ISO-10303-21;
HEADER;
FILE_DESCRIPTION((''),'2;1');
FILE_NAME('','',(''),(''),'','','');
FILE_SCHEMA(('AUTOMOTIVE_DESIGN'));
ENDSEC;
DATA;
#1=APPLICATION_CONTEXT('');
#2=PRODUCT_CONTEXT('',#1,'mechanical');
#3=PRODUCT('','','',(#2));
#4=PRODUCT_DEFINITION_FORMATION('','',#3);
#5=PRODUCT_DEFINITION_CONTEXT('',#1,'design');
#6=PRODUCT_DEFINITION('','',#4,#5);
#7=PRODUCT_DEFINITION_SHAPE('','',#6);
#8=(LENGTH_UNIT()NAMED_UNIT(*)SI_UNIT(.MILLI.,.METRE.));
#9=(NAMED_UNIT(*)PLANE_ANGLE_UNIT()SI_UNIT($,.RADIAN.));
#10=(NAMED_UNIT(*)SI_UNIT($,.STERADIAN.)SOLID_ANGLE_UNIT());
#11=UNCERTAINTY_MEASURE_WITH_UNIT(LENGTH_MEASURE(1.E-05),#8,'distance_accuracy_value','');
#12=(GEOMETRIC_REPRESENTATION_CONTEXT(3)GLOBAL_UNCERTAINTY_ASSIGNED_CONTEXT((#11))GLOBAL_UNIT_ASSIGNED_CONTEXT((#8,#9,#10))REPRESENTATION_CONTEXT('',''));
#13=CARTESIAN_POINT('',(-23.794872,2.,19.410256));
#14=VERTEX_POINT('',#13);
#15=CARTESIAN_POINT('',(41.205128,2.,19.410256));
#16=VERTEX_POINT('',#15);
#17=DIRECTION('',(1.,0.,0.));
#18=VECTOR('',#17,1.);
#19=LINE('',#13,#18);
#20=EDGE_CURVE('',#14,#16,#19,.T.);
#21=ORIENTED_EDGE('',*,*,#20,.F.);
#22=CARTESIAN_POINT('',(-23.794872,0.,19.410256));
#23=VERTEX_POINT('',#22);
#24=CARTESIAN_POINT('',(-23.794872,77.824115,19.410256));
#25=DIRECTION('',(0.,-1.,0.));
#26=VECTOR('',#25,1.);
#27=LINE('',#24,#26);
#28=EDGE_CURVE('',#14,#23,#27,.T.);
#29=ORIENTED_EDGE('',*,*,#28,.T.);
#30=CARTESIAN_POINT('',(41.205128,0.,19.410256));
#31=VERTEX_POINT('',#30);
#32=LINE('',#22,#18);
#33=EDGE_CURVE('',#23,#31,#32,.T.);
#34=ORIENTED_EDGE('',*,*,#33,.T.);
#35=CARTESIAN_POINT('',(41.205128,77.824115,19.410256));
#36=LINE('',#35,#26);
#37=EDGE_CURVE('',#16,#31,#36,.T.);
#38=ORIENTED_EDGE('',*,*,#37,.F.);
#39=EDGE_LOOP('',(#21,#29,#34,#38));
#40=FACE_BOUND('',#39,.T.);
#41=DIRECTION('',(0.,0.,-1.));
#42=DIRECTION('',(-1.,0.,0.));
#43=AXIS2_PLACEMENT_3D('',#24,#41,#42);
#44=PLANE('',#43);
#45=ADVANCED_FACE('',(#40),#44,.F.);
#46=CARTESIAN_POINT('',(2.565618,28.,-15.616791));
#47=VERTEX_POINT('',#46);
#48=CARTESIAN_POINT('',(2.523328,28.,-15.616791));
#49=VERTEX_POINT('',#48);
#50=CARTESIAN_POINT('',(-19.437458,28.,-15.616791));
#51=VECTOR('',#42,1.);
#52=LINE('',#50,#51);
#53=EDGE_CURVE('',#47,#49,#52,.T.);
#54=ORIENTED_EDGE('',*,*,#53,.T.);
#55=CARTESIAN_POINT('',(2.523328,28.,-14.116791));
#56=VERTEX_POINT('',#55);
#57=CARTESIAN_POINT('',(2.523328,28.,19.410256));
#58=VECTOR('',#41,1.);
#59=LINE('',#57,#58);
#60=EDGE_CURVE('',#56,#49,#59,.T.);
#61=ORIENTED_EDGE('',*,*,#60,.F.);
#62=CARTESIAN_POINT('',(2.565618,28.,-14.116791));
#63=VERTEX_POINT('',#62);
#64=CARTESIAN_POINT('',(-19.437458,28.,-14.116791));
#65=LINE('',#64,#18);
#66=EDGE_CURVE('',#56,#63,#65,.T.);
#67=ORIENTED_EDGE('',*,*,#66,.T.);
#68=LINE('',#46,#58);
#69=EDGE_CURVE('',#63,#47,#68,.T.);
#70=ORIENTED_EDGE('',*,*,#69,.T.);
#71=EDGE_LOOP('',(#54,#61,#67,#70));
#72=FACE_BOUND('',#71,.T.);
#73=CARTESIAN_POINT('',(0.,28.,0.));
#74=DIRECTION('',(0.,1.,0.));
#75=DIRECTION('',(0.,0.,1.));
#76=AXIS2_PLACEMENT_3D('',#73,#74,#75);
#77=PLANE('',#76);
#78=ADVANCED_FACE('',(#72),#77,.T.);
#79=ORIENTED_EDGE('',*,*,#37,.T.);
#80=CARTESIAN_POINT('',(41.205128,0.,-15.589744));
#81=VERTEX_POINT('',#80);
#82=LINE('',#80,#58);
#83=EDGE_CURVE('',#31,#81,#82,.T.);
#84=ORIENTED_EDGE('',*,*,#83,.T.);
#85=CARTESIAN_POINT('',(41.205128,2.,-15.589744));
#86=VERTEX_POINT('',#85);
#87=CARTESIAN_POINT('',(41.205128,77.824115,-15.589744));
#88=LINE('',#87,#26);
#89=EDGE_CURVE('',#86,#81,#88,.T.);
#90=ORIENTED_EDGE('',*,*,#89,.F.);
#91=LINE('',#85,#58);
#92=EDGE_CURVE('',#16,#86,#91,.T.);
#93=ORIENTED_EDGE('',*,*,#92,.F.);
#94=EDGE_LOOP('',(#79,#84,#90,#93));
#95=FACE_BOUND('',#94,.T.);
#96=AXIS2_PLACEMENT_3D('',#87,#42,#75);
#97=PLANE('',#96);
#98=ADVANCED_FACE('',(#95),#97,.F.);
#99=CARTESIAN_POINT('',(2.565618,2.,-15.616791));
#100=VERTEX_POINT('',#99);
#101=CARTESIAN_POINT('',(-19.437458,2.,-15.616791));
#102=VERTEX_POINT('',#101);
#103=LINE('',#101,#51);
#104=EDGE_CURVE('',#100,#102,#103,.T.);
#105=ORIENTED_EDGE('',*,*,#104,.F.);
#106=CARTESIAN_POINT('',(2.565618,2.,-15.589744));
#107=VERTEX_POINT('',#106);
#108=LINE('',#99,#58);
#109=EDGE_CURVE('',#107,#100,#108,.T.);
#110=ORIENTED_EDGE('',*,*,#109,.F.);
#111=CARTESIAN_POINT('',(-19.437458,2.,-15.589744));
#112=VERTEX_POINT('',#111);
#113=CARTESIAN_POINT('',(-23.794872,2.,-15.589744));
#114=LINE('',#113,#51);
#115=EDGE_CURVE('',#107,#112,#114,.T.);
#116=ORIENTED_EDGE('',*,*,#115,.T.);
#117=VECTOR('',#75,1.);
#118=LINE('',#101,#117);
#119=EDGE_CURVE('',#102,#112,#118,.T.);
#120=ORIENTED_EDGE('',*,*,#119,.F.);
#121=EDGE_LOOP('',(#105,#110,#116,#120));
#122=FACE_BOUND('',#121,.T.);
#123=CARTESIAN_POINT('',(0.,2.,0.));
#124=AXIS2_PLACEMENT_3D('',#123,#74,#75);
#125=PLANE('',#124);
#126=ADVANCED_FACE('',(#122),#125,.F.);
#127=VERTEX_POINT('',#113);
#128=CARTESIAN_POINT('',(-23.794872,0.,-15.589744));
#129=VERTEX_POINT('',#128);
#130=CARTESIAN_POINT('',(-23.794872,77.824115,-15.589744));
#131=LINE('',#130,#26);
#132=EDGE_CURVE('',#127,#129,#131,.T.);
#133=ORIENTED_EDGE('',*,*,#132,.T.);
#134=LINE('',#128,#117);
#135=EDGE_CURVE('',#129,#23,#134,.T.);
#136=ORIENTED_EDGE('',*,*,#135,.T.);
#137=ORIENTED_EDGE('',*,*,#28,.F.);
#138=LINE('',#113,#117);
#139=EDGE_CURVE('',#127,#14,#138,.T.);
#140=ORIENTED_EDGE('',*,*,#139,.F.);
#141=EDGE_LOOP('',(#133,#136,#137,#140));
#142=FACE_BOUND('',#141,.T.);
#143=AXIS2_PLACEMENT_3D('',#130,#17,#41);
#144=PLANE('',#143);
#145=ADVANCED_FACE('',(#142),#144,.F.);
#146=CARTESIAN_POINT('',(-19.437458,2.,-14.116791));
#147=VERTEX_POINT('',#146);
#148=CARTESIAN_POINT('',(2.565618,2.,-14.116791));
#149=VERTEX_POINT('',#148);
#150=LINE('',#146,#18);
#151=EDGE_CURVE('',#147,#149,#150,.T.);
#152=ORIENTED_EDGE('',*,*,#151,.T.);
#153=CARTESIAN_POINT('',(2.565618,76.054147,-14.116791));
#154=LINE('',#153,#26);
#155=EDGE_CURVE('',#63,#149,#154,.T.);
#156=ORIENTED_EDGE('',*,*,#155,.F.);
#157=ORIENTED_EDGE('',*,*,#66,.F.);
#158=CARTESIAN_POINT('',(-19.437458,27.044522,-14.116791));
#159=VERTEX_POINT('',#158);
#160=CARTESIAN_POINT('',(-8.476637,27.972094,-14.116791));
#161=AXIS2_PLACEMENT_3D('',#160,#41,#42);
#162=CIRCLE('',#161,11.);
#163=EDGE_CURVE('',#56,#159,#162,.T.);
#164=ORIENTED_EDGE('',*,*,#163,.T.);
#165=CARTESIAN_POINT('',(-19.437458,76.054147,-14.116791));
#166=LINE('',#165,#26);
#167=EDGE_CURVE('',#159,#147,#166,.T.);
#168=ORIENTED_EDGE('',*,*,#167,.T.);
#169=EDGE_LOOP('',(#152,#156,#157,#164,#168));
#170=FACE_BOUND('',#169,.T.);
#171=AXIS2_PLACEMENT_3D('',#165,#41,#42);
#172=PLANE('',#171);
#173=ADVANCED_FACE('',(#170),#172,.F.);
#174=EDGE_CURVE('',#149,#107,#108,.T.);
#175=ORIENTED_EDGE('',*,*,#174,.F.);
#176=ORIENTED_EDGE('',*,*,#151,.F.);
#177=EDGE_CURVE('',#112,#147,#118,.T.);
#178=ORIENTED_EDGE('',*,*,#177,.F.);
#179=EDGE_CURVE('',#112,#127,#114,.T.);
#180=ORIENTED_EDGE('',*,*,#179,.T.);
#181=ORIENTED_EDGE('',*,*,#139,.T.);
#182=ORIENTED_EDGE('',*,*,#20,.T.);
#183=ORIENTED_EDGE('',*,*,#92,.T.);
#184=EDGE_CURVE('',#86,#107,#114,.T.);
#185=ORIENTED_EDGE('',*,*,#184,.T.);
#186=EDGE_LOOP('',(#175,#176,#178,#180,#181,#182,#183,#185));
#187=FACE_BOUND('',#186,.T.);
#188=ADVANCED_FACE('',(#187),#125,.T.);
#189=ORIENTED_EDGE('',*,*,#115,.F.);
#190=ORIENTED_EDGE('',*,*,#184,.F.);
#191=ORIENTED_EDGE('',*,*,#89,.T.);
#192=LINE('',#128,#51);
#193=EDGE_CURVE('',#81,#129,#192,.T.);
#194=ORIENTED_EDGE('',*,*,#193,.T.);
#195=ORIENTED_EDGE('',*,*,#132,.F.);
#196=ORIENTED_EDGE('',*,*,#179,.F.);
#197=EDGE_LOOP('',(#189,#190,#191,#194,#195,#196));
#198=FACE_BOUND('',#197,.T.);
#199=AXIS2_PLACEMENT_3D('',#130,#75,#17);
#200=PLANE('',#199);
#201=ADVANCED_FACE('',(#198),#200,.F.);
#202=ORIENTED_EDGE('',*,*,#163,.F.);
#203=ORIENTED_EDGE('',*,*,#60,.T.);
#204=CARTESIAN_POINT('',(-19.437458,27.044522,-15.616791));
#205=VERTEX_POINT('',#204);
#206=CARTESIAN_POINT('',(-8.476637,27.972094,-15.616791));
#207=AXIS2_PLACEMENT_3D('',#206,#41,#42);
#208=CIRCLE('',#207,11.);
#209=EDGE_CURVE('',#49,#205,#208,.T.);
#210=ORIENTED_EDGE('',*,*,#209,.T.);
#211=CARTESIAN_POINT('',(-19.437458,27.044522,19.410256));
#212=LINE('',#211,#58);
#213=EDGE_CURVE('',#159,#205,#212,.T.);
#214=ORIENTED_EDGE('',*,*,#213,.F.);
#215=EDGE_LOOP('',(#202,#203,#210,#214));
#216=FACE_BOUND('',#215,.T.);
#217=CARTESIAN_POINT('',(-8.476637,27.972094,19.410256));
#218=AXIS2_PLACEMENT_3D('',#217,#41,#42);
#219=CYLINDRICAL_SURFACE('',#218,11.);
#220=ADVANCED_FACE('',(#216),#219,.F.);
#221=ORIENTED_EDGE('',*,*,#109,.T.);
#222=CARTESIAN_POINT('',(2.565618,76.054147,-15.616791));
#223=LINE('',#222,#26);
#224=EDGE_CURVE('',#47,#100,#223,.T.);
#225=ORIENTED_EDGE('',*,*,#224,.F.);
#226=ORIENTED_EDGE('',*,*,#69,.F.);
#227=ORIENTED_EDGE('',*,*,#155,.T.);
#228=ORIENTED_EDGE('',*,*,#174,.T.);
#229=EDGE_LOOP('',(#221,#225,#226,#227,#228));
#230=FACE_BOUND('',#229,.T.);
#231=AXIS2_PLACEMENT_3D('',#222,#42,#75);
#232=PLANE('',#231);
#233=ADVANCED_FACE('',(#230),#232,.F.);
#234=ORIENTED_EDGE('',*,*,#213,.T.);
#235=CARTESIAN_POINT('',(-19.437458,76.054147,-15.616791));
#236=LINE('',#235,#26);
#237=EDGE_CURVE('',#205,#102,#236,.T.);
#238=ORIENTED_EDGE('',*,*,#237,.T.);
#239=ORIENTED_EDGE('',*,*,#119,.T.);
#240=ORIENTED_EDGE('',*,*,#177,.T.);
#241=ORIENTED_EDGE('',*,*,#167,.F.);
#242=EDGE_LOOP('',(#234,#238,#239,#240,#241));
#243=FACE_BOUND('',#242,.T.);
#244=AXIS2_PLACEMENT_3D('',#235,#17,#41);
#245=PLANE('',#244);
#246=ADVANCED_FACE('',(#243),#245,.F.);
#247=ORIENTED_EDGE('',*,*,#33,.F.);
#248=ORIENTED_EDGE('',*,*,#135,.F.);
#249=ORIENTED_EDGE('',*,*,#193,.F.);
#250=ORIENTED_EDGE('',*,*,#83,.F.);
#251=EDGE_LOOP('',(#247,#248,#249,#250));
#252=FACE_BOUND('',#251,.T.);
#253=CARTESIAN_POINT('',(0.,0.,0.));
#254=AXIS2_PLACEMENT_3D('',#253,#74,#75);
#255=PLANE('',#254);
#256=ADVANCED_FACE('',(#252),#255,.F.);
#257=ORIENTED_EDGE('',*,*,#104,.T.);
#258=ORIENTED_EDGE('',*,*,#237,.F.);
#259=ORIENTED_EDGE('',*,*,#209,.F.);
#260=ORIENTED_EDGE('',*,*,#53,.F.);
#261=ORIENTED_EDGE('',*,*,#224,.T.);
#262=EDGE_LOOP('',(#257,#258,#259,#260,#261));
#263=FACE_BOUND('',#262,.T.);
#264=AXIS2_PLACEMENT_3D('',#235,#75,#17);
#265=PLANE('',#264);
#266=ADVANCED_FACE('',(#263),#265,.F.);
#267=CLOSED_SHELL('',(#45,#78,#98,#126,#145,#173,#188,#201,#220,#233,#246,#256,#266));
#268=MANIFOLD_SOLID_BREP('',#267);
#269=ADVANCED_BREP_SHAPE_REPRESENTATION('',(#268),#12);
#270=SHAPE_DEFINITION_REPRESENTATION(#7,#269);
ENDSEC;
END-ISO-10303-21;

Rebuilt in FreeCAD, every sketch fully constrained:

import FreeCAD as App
import Part
import Sketcher

V = App.Vector

doc = App.newDocument("Part")
body = doc.addObject("PartDesign::Body", "Body")

# Sketch on XZ plane
sketch1 = doc.addObject("Sketcher::SketchObject", "Sketch")
body.addObject(sketch1)
sketch1.AttachmentSupport = (doc.XZ_Plane, [""])
sketch1.MapMode = "FlatFace"
sketch1.addGeometry([
    Part.LineSegment(V(-24, -16, 0), V(-24, 19, 0)),
    Part.LineSegment(V(-24, 19, 0), V(41, 19, 0)),
    Part.LineSegment(V(41, 19, 0), V(41, -16, 0)),
    Part.LineSegment(V(41, -16, 0), V(-24, -16, 0)),
], False)
sketch1.addConstraint([
    Sketcher.Constraint("Coincident", 0, 2, 1, 1),
    Sketcher.Constraint("Coincident", 1, 2, 2, 1),
    Sketcher.Constraint("Coincident", 2, 2, 3, 1),
    Sketcher.Constraint("Coincident", 3, 2, 0, 1),
    Sketcher.Constraint("Vertical", 0),
    Sketcher.Constraint("Horizontal", 1),
    Sketcher.Constraint("Vertical", 2),
    Sketcher.Constraint("Horizontal", 3),
    Sketcher.Constraint("DistanceX", 1, 1, 1, 2, 65.0),
    Sketcher.Constraint("DistanceY", 0, 1, 0, 2, 35.0),
    Sketcher.Constraint("DistanceX", 0, 2, -1, 1, 23.794872),
    Sketcher.Constraint("DistanceY", -1, 1, 0, 2, 19.410256),
])
pad1 = doc.addObject("PartDesign::Pad", "Pad")
body.addObject(pad1)
pad1.Profile = sketch1
pad1.Length = 2
pad1.Reversed = True

# Sketch on XZ plane
sketch2 = doc.addObject("Sketcher::SketchObject", "Sketch001")
body.addObject(sketch2)
sketch2.AttachmentSupport = (doc.XZ_Plane, [""])
sketch2.MapMode = "FlatFace"
sketch2.AttachmentOffset = App.Placement(V(0, 0, -2), App.Rotation())
sketch2.addGeometry([
    Part.LineSegment(V(-19.4, -15.6, 0), V(-19.4, -14.1, 0)),
    Part.LineSegment(V(-19.4, -14.1, 0), V(2.6, -14.1, 0)),
    Part.LineSegment(V(2.6, -14.1, 0), V(2.6, -15.6, 0)),
    Part.LineSegment(V(2.6, -15.6, 0), V(-19.4, -15.6, 0)),
], False)
sketch2.addConstraint([
    Sketcher.Constraint("Coincident", 0, 2, 1, 1),
    Sketcher.Constraint("Coincident", 1, 2, 2, 1),
    Sketcher.Constraint("Coincident", 2, 2, 3, 1),
    Sketcher.Constraint("Coincident", 3, 2, 0, 1),
    Sketcher.Constraint("Vertical", 0),
    Sketcher.Constraint("Horizontal", 1),
    Sketcher.Constraint("Vertical", 2),
    Sketcher.Constraint("Horizontal", 3),
    Sketcher.Constraint("DistanceY", 0, 1, 0, 2, 1.5),
    Sketcher.Constraint("DistanceX", 1, 1, 1, 2, 22.003077),
    Sketcher.Constraint("DistanceX", 0, 2, -1, 1, 19.437458),
    Sketcher.Constraint("DistanceY", 0, 2, -1, 1, 14.116791),
])
pad2 = doc.addObject("PartDesign::Pad", "Pad001")
body.addObject(pad2)
pad2.Profile = sketch2
pad2.Length = 26
pad2.Reversed = True

# Sketch on XY plane
sketch3 = doc.addObject("Sketcher::SketchObject", "Sketch002")
body.addObject(sketch3)
sketch3.AttachmentSupport = (doc.XY_Plane, [""])
sketch3.MapMode = "FlatFace"
sketch3.AttachmentOffset = App.Placement(V(0, 0, -15.616791), App.Rotation())
sketch3.addGeometry(Part.Circle(V(-8, 28, 0), V(0, 0, 1), 11), False)
sketch3.addConstraint([
    Sketcher.Constraint("Diameter", 0, 22.0),
    Sketcher.Constraint("DistanceX", 0, 3, -1, 1, 8.476637),
    Sketcher.Constraint("DistanceY", -1, 1, 0, 3, 27.972094),
])
pocket1 = doc.addObject("PartDesign::Pocket", "Pocket")
body.addObject(pocket1)
pocket1.Profile = sketch3
pocket1.Type = "ThroughAll"
pocket1.Reversed = True

doc.recompute()
